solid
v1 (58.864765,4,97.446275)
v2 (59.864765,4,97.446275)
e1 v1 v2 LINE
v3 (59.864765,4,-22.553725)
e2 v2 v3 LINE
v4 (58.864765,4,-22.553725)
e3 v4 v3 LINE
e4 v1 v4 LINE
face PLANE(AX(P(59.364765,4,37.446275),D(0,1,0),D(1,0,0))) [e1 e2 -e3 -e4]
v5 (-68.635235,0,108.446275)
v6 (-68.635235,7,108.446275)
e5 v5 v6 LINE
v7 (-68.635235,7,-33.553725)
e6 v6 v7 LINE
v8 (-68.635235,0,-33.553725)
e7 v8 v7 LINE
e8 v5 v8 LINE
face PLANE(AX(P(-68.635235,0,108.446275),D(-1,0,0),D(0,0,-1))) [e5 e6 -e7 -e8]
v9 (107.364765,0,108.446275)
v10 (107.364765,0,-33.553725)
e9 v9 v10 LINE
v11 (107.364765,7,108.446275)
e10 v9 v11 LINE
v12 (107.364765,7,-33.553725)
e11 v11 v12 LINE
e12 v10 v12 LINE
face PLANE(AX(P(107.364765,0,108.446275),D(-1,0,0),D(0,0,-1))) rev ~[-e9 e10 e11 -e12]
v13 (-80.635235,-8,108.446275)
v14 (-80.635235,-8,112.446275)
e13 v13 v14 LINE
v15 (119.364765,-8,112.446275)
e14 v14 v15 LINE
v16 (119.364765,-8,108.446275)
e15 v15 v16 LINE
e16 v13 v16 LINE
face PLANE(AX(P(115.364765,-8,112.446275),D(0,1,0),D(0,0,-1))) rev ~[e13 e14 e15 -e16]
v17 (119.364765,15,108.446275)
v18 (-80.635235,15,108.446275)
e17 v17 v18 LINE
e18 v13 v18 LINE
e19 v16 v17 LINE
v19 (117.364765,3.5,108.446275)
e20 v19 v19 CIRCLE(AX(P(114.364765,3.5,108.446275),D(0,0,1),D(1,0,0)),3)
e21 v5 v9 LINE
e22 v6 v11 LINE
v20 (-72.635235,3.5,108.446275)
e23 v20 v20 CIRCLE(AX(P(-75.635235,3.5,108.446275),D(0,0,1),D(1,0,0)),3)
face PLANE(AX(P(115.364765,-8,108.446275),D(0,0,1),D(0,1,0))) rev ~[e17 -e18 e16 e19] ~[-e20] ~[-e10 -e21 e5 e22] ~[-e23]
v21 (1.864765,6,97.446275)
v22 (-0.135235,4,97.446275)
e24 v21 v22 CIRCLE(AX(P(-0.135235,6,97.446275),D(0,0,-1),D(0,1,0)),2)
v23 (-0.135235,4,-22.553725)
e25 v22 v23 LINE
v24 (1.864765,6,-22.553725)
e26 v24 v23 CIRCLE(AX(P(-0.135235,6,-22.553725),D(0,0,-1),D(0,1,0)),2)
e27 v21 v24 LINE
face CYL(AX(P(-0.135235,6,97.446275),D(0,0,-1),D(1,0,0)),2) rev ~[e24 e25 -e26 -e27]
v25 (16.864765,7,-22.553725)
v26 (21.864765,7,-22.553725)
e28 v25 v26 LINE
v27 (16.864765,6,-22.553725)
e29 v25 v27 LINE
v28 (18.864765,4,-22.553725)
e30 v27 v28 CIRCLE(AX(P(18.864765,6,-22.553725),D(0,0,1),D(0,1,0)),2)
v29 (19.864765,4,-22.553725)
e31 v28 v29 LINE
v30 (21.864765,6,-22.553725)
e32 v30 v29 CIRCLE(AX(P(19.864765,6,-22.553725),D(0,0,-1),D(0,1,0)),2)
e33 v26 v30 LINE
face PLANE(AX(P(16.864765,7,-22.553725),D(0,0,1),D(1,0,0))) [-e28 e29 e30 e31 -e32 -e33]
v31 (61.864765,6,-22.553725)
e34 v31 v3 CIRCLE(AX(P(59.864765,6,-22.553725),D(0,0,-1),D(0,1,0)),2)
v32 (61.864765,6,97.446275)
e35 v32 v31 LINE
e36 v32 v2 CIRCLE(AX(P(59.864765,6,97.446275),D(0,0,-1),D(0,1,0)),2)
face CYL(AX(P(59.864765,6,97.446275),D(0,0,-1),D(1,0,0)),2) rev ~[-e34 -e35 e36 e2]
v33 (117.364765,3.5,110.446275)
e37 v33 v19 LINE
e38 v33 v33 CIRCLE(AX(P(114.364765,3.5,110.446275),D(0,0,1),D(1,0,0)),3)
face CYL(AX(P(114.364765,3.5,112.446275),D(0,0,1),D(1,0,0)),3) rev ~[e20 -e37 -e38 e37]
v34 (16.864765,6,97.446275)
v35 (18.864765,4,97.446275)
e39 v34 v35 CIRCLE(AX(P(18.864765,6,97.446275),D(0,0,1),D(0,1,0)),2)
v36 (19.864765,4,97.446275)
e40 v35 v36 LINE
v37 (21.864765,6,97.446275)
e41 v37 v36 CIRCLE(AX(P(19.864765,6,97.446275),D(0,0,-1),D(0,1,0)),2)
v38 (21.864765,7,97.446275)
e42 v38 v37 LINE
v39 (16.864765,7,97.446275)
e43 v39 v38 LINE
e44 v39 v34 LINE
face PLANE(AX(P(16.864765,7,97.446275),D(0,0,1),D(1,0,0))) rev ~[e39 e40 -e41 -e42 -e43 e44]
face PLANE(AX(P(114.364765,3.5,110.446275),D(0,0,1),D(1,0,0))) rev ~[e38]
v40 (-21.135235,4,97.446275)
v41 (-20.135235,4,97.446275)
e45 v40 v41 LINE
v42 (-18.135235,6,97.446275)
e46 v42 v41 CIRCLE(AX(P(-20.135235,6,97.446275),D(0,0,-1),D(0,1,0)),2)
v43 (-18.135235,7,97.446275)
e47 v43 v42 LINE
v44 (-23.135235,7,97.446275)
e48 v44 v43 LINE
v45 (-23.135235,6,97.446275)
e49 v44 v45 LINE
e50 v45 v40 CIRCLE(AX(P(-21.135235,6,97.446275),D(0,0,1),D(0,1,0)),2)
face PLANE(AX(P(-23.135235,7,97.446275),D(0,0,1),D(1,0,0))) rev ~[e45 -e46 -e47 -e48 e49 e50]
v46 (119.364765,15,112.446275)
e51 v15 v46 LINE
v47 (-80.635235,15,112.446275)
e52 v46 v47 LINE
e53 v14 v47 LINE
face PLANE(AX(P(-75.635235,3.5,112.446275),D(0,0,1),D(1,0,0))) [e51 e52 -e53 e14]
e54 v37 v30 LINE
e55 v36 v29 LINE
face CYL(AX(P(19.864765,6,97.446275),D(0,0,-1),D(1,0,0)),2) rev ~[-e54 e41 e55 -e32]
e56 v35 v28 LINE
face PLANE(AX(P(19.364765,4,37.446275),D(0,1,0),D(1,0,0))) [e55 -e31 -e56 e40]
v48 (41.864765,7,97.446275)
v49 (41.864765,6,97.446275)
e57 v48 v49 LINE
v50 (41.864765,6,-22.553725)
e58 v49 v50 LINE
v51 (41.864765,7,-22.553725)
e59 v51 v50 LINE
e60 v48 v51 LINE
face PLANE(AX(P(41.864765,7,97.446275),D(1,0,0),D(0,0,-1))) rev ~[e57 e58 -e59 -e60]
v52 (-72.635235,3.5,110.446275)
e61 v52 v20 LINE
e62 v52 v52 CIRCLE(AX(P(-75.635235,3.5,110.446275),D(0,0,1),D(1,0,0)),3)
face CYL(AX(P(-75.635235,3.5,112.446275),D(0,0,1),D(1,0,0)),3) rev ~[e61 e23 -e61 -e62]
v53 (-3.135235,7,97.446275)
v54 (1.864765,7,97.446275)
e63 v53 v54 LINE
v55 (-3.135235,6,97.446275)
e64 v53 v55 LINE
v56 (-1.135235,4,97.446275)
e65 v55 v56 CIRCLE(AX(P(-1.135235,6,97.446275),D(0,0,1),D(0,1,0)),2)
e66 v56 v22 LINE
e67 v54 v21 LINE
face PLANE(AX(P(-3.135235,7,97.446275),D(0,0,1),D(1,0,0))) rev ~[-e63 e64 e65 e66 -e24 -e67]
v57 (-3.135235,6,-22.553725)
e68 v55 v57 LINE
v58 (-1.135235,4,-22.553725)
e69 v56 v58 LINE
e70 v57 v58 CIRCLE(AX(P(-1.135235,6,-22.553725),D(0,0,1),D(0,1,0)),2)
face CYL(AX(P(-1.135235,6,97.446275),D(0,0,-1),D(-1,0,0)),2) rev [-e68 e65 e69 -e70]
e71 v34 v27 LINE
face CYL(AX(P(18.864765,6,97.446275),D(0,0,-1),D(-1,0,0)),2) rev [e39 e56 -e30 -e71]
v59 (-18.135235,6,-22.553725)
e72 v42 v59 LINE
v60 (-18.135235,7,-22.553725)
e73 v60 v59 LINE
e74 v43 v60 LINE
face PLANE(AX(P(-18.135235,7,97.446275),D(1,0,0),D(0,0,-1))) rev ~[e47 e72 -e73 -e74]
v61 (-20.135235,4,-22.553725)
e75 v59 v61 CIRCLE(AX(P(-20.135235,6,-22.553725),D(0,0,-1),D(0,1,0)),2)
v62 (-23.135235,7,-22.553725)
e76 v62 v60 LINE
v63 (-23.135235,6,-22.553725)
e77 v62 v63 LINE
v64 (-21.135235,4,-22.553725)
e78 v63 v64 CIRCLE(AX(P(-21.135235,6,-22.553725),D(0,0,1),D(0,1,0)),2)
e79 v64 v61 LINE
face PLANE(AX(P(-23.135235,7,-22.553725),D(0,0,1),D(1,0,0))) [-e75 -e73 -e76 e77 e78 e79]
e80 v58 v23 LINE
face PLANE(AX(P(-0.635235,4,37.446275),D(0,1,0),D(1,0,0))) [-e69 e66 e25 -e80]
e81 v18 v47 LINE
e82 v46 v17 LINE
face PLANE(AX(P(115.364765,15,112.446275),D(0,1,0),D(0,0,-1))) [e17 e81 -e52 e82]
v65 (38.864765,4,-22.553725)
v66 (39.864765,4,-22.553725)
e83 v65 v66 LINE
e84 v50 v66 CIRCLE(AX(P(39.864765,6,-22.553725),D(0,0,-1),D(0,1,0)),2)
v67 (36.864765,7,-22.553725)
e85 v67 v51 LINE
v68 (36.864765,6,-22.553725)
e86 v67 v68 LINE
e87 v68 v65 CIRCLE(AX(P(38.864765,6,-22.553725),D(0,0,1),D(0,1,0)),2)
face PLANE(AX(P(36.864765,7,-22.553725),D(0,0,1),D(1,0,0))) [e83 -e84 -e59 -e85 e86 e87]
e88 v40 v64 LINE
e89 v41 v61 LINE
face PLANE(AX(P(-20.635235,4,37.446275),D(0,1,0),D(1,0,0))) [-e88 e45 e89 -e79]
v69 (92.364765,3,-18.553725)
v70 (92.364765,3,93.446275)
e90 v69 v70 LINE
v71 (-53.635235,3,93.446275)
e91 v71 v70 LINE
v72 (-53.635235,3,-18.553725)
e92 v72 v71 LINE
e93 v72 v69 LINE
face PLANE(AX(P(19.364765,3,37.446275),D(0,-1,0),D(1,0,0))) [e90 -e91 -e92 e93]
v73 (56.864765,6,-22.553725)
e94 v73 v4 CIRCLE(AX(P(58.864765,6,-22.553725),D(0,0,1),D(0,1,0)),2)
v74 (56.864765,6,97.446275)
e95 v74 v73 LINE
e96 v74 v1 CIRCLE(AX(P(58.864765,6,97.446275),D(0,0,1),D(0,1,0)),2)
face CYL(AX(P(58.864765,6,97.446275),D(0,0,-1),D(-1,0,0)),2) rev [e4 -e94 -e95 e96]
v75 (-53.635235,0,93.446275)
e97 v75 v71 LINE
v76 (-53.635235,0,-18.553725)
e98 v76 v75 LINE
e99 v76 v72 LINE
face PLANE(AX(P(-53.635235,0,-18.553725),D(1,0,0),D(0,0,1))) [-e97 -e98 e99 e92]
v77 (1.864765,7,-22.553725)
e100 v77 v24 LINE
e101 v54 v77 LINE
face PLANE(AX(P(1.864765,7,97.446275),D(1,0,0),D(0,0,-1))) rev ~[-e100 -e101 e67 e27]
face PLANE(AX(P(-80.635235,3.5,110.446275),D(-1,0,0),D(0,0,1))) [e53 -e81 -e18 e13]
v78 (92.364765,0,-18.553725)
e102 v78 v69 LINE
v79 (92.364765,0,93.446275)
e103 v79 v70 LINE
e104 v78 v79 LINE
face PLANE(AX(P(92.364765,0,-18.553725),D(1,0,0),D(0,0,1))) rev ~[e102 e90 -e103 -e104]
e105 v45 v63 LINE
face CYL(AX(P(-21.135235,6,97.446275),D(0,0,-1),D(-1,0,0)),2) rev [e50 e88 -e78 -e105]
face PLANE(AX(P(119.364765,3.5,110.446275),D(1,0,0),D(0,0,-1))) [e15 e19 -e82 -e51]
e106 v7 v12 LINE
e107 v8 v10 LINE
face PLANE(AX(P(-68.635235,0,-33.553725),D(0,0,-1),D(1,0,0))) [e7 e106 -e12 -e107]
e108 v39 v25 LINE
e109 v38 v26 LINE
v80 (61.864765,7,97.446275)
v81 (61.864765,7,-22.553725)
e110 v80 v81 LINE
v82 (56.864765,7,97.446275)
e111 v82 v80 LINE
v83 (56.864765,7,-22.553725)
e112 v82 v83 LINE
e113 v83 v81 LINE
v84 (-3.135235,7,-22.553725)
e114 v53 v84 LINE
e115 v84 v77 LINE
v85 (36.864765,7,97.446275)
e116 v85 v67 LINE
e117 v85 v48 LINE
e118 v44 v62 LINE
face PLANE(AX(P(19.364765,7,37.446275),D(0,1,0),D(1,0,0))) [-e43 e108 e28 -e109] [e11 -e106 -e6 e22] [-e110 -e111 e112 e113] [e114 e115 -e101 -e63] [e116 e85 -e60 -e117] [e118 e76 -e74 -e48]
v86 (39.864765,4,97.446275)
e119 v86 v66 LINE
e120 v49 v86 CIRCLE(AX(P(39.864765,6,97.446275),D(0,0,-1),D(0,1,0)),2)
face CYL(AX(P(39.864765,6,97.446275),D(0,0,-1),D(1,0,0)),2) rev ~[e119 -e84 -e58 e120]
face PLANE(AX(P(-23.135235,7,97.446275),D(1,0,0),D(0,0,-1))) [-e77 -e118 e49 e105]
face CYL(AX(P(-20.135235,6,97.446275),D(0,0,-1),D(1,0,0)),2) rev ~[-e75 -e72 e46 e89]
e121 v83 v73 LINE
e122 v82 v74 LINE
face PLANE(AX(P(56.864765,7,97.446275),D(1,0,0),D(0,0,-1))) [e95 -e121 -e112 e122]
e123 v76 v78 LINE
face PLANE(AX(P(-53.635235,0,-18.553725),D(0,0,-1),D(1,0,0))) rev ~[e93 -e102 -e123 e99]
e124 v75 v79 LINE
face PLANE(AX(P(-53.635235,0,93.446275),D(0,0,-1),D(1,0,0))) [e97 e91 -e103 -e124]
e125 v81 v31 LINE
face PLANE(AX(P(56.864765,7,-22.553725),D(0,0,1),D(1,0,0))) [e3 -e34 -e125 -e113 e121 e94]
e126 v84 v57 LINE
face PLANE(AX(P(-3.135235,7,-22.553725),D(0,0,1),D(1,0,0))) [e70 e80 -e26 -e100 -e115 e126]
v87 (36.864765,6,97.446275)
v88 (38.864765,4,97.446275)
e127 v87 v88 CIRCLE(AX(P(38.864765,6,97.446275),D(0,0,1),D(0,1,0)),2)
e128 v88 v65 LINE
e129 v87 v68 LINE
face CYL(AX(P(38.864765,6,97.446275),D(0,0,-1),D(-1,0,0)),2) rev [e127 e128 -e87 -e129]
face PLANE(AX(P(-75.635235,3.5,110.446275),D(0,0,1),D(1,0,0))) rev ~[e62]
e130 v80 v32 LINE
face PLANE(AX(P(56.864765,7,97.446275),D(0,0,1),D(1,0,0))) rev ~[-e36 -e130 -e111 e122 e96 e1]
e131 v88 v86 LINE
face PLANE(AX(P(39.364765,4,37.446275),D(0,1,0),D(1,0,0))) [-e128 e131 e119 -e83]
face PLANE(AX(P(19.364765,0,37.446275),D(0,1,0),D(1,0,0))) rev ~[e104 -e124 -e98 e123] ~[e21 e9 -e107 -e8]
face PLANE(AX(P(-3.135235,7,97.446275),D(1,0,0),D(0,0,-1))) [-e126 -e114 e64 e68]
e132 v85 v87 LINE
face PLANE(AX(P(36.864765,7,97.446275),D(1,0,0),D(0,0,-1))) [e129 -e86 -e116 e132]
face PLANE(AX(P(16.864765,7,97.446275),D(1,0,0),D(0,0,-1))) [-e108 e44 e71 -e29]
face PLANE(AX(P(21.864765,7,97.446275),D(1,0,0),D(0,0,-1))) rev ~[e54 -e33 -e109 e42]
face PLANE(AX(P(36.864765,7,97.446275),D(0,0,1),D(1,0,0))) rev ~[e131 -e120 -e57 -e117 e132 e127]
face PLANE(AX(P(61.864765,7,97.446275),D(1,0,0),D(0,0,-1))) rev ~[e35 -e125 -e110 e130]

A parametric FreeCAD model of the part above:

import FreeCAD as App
import Part
import Sketcher

V = App.Vector
Q = App.Units.Quantity


def edges_at(feature, points):
    """Names of the edges that pass closest to the given points."""
    edges = feature.Shape.Edges
    near = lambda p: min(range(len(edges)), key=lambda i: edges[i].distToShape(Part.Vertex(*p))[0])
    return sorted({f"Edge{near(p) + 1}" for p in points})


def add_polygon(sketch, points):
    """Adds a closed chain of lines whose ends are joined by coincident constraints."""
    first, n = sketch.GeometryCount, len(points)
    for a, b in zip(points, points[1:] + points[:1]):
        sketch.addGeometry(Part.LineSegment(App.Vector(*a, 0), App.Vector(*b, 0)), False)
    for i in range(n):
        sketch.addConstraint(Sketcher.Constraint("Coincident", first + i, 2, first + (i + 1) % n, 1))

doc = App.newDocument("Part")
params = doc.addObject("Spreadsheet::Sheet", "Params")
for row, (alias, value) in enumerate([
    ("sketch1_width", "176 mm"),
    ("sketch1_height", "142 mm"),
    ("pad1_length", "7 mm"),
    ("sketch2_width", "192 mm"),
    ("sketch2_height", "23 mm"),
    ("pad2_length", "4 mm"),
    ("sketch3_width", "146 mm"),
    ("sketch3_height", "112 mm"),
    ("pocket1_length", "3 mm"),
    ("sketch4_width", "5 mm"),
    ("sketch4_height", "120 mm"),
    ("pocket2_length", "3 mm"),
    ("fillet_radius", "2 mm"),
    ("sketch5_width", "23 mm"),
    ("sketch5_height", "4 mm"),
    ("pad3_length", "4 mm"),
    ("sketch6_width", "23 mm"),
    ("sketch6_height", "4 mm"),
    ("pad4_length", "4 mm"),
    ("sketch7_diameter", "6 mm"),
    ("sketch8_diameter", "6 mm"),
    ("pad5_length", "2 mm"),
], start=1):
    params.set(f"A{row}", alias)
    params.set(f"B{row}", "=" + value)
    params.setAlias(f"B{row}", alias)

body = doc.addObject("PartDesign::Body", "Body")

# Sketch on XZ plane
sketch1 = doc.addObject("Sketcher::SketchObject", "Sketch")
body.addObject(sketch1)
sketch1.AttachmentSupport = (doc.XZ_Plane, [""])
sketch1.MapMode = "FlatFace"
add_polygon(sketch1, [(-69, -34), (-69, 108), (107, 108), (107, -34)])  # lines 0-3
sketch1.addConstraint([
    Sketcher.Constraint("Vertical", 0),
    Sketcher.Constraint("Horizontal", 1),
    Sketcher.Constraint("Vertical", 2),
    Sketcher.Constraint("Horizontal", 3),
    Sketcher.Constraint("DistanceX", 1, 1, 1, 2, Q("176 mm")),
    Sketcher.Constraint("DistanceY", 0, 1, 0, 2, Q("142 mm")),
    Sketcher.Constraint("DistanceX", 0, 2, -1, 1, Q("68.635235 mm")),
    Sketcher.Constraint("DistanceY", -1, 1, 0, 2, Q("108.446275 mm")),
])
sketch1.setExpression("Constraints[8]", "Params.sketch1_width")
sketch1.setExpression("Constraints[9]", "Params.sketch1_height")
pad1 = doc.addObject("PartDesign::Pad", "Pad")
body.addObject(pad1)
pad1.Profile = sketch1
pad1.setExpression("Length", "Params.pad1_length")
pad1.Reversed = True

# Sketch on XY plane
sketch2 = doc.addObject("Sketcher::SketchObject", "Sketch001")
body.addObject(sketch2)
sketch2.AttachmentSupport = (doc.XY_Plane, [""])
sketch2.MapMode = "FlatFace"
sketch2.AttachmentOffset = App.Placement(V(0, 0, 108.446275), App.Rotation())
add_polygon(sketch2, [(-77, 15), (-77, -8), (115, -8), (115, 15)])  # lines 0-3
sketch2.addConstraint([
    Sketcher.Constraint("Vertical", 0),
    Sketcher.Constraint("Horizontal", 1),
    Sketcher.Constraint("Vertical", 2),
    Sketcher.Constraint("Horizontal", 3),
    Sketcher.Constraint("DistanceX", 1, 1, 1, 2, Q("192 mm")),
    Sketcher.Constraint("DistanceY", 0, 2, 0, 1, Q("23 mm")),
    Sketcher.Constraint("DistanceY", 0, 2, -1, 1, Q("8 mm")),
    Sketcher.Constraint("DistanceX", 0, 2, -1, 1, Q("76.635235 mm")),
])
sketch2.setExpression("Constraints[8]", "Params.sketch2_width")
sketch2.setExpression("Constraints[9]", "Params.sketch2_height")
pad2 = doc.addObject("PartDesign::Pad", "Pad001")
body.addObject(pad2)
pad2.Profile = sketch2
pad2.setExpression("Length", "Params.pad2_length")

# Sketch on XZ plane
sketch3 = doc.addObject("Sketcher::SketchObject", "Sketch002")
body.addObject(sketch3)
sketch3.AttachmentSupport = (doc.XZ_Plane, [""])
sketch3.MapMode = "FlatFace"
add_polygon(sketch3, [(-54, 93), (-54, -19), (92, -19), (92, 93)])  # lines 0-3
sketch3.addConstraint([
    Sketcher.Constraint("Vertical", 0),
    Sketcher.Constraint("Horizontal", 1),
    Sketcher.Constraint("Vertical", 2),
    Sketcher.Constraint("Horizontal", 3),
    Sketcher.Constraint("DistanceX", 1, 1, 1, 2, Q("146 mm")),
    Sketcher.Constraint("DistanceY", 0, 2, 0, 1, Q("112 mm")),
    Sketcher.Constraint("DistanceX", 0, 2, -1, 1, Q("53.635235 mm")),
    Sketcher.Constraint("DistanceY", 0, 2, -1, 1, Q("18.553725 mm")),
])
sketch3.setExpression("Constraints[8]", "Params.sketch3_width")
sketch3.setExpression("Constraints[9]", "Params.sketch3_height")
pocket1 = doc.addObject("PartDesign::Pocket", "Pocket")
body.addObject(pocket1)
pocket1.Profile = sketch3
pocket1.setExpression("Length", "Params.pocket1_length")

# Sketch on XZ plane
sketch4 = doc.addObject("Sketcher::SketchObject", "Sketch003")
body.addObject(sketch4)
sketch4.AttachmentSupport = (doc.XZ_Plane, [""])
sketch4.MapMode = "FlatFace"
sketch4.AttachmentOffset = App.Placement(V(0, 0, -7), App.Rotation())
add_polygon(sketch4, [(17, -23), (17, 97), (22, 97), (22, -23)])  # lines 0-3
add_polygon(sketch4, [(37, -23), (37, 97), (42, 97), (42, -23)])  # lines 4-7
add_polygon(sketch4, [(-3, -23), (-3, 97), (2, 97), (2, -23)])  # lines 8-11
add_polygon(sketch4, [(57, -23), (57, 97), (62, 97), (62, -23)])  # lines 12-15
add_polygon(sketch4, [(-23, -23), (-23, 97), (-18, 97), (-18, -23)])  # lines 16-19
sketch4.addConstraint([
    Sketcher.Constraint("Vertical", 0),
    Sketcher.Constraint("Horizontal", 1),
    Sketcher.Constraint("Vertical", 2),
    Sketcher.Constraint("Horizontal", 3),
    Sketcher.Constraint("Vertical", 4),
    Sketcher.Constraint("Horizontal", 5),
    Sketcher.Constraint("Vertical", 6),
    Sketcher.Constraint("Horizontal", 7),
    Sketcher.Constraint("Vertical", 8),
    Sketcher.Constraint("Horizontal", 9),
    Sketcher.Constraint("Vertical", 10),
    Sketcher.Constraint("Horizontal", 11),
    Sketcher.Constraint("Vertical", 12),
    Sketcher.Constraint("Horizontal", 13),
    Sketcher.Constraint("Vertical", 14),
    Sketcher.Constraint("Horizontal", 15),
    Sketcher.Constraint("Vertical", 16),
    Sketcher.Constraint("Horizontal", 17),
    Sketcher.Constraint("Vertical", 18),
    Sketcher.Constraint("Horizontal", 19),
    Sketcher.Constraint("Horizontal", 1, 2, 4, 2),
    Sketcher.Constraint("Horizontal", 3, 2, 6, 2),
    Sketcher.Constraint("Horizontal", 5, 2, 8, 2),
    Sketcher.Constraint("Horizontal", 7, 2, 10, 2),
    Sketcher.Constraint("Horizontal", 9, 2, 12, 2),
    Sketcher.Constraint("Horizontal", 11, 2, 14, 2),
    Sketcher.Constraint("Horizontal", 13, 2, 16, 2),
    Sketcher.Constraint("Horizontal", 15, 2, 18, 2),
    Sketcher.Constraint("Equal", 3, 5),
    Sketcher.Constraint("Equal", 7, 9),
    Sketcher.Constraint("Equal", 11, 13),
    Sketcher.Constraint("Equal", 15, 17),
    Sketcher.Constraint("DistanceX", 1, 1, 1, 2, Q("5 mm")),
    Sketcher.Constraint("DistanceY", 0, 1, 0, 2, Q("120 mm")),
    Sketcher.Constraint("DistanceX", 1, 2, 4, 2, Q("15 mm")),
    Sketcher.Constraint("DistanceX", 8, 2, 0, 2, Q("20 mm")),
    Sketcher.Constraint("DistanceX", 5, 2, 12, 2, Q("15 mm")),
    Sketcher.Constraint("DistanceX", 16, 2, 8, 2, Q("20 mm")),
    Sketcher.Constraint("DistanceX", -1, 1, 0, 2, Q("16.864765 mm")),
    Sketcher.Constraint("DistanceY", -1, 1, 0, 2, Q("97.446275 mm")),
])
sketch4.setExpression("Constraints[52]", "Params.sketch4_width")
sketch4.setExpression("Constraints[53]", "Params.sketch4_height")
pocket2 = doc.addObject("PartDesign::Pocket", "Pocket001")
body.addObject(pocket2)
pocket2.Profile = sketch4
pocket2.setExpression("Length", "Params.pocket2_length")
pocket2.Reversed = True
doc.recompute()

fillet = doc.addObject("PartDesign::Fillet", "Fillet")
body.addObject(fillet)
fillet.Base = (pocket2, edges_at(pocket2, [
    (41.865, 4, 37.446),
    (36.865, 4, 37.446),
    (-3.135, 4, 37.446),
    (1.865, 4, 37.446),
    (61.865, 4, 37.446),
    (56.865, 4, 37.446),
    (-23.135, 4, 37.446),
    (-18.135, 4, 37.446),
    (21.865, 4, 37.446),
    (16.865, 4, 37.446),
]))
fillet.setExpression("Radius", "Params.fillet_radius")

# Sketch on YZ plane
sketch5 = doc.addObject("Sketcher::SketchObject", "Sketch004")
body.addObject(sketch5)
sketch5.AttachmentSupport = (doc.YZ_Plane, [""])
sketch5.MapMode = "FlatFace"
sketch5.AttachmentOffset = App.Placement(V(0, 0, -76.635235), App.Rotation())
add_polygon(sketch5, [(15, 108.4), (-8, 108.4), (-8, 112.4), (15, 112.4)])  # lines 0-3
sketch5.addConstraint([
    Sketcher.Constraint("Horizontal", 0),
    Sketcher.Constraint("Vertical", 1),
    Sketcher.Constraint("Horizontal", 2),
    Sketcher.Constraint("Vertical", 3),
    Sketcher.Constraint("DistanceX", 0, 2, 0, 1, Q("23 mm")),
    Sketcher.Constraint("DistanceY", 1, 1, 1, 2, Q("4 mm")),
    Sketcher.Constraint("DistanceX", 0, 2, -1, 1, Q("8 mm")),
    Sketcher.Constraint("DistanceY", -1, 1, 0, 2, Q("108.446275 mm")),
])
sketch5.setExpression("Constraints[8]", "Params.sketch5_width")
sketch5.setExpression("Constraints[9]", "Params.sketch5_height")
pad3 = doc.addObject("PartDesign::Pad", "Pad002")
body.addObject(pad3)
pad3.Profile = sketch5
pad3.setExpression("Length", "Params.pad3_length")
pad3.Reversed = True

# Sketch on YZ plane
sketch6 = doc.addObject("Sketcher::SketchObject", "Sketch005")
body.addObject(sketch6)
sketch6.AttachmentSupport = (doc.YZ_Plane, [""])
sketch6.MapMode = "FlatFace"
sketch6.AttachmentOffset = App.Placement(V(0, 0, 115.364765), App.Rotation())
add_polygon(sketch6, [(15, 112.4), (-8, 112.4), (-8, 108.4), (15, 108.4)])  # lines 0-3
sketch6.addConstraint([
    Sketcher.Constraint("Horizontal", 0),
    Sketcher.Constraint("Vertical", 1),
    Sketcher.Constraint("Horizontal", 2),
    Sketcher.Constraint("Vertical", 3),
    Sketcher.Constraint("DistanceX", 0, 2, 0, 1, Q("23 mm")),
    Sketcher.Constraint("DistanceY", 1, 2, 1, 1, Q("4 mm")),
    Sketcher.Constraint("DistanceX", 0, 2, -1, 1, Q("8 mm")),
    Sketcher.Constraint("DistanceY", -1, 1, 0, 2, Q("112.446275 mm")),
])
sketch6.setExpression("Constraints[8]", "Params.sketch6_width")
sketch6.setExpression("Constraints[9]", "Params.sketch6_height")
pad4 = doc.addObject("PartDesign::Pad", "Pad003")
body.addObject(pad4)
pad4.Profile = sketch6
pad4.setExpression("Length", "Params.pad4_length")

# Sketch on XY plane
sketch7 = doc.addObject("Sketcher::SketchObject", "Sketch006")
body.addObject(sketch7)
sketch7.AttachmentSupport = (doc.XY_Plane, [""])
sketch7.MapMode = "FlatFace"
sketch7.AttachmentOffset = App.Placement(V(0, 0, 112.446275), App.Rotation())
sketch7.addGeometry([
    Part.Circle(V(-75.6, 3.5, 0), V(0, 0, 1), 3),
    Part.Circle(V(114.4, 3.5, 0), V(0, 0, 1), 3),
], False)
sketch7.addConstraint([
    Sketcher.Constraint("Equal", 0, 1),
    Sketcher.Constraint("Horizontal", 0, 3, 1, 3),
    Sketcher.Constraint("Diameter", 0, Q("6 mm")),
    Sketcher.Constraint("DistanceX", 0, 3, 1, 3, Q("190 mm")),
    Sketcher.Constraint("DistanceY", -1, 1, 0, 3, Q("3.5 mm")),
    Sketcher.Constraint("DistanceX", 0, 3, -1, 1, Q("75.635235 mm")),
])
sketch7.setExpression("Constraints[2]", "Params.sketch7_diameter")
pocket3 = doc.addObject("PartDesign::Pocket", "Pocket002")
body.addObject(pocket3)
pocket3.Profile = sketch7
pocket3.Type = "ThroughAll"

# Sketch on XY plane
sketch8 = doc.addObject("Sketcher::SketchObject", "Sketch007")
body.addObject(sketch8)
sketch8.AttachmentSupport = (doc.XY_Plane, [""])
sketch8.MapMode = "FlatFace"
sketch8.AttachmentOffset = App.Placement(V(0, 0, 112.446275), App.Rotation())
sketch8.addGeometry([
    Part.Circle(V(-75.6, 3.5, 0), V(0, 0, 1), 3),
    Part.Circle(V(114.4, 3.5, 0), V(0, 0, 1), 3),
], False)
sketch8.addConstraint([
    Sketcher.Constraint("Equal", 0, 1),
    Sketcher.Constraint("Horizontal", 0, 3, 1, 3),
    Sketcher.Constraint("Diameter", 0, Q("6 mm")),
    Sketcher.Constraint("DistanceX", 0, 3, 1, 3, Q("190 mm")),
    Sketcher.Constraint("DistanceY", -1, 1, 0, 3, Q("3.5 mm")),
    Sketcher.Constraint("DistanceX", 0, 3, -1, 1, Q("75.635235 mm")),
])
sketch8.setExpression("Constraints[2]", "Params.sketch8_diameter")
pad5 = doc.addObject("PartDesign::Pad", "Pad004")
body.addObject(pad5)
pad5.Profile = sketch8
pad5.setExpression("Length", "Params.pad5_length")
pad5.Reversed = True

doc.recompute()
